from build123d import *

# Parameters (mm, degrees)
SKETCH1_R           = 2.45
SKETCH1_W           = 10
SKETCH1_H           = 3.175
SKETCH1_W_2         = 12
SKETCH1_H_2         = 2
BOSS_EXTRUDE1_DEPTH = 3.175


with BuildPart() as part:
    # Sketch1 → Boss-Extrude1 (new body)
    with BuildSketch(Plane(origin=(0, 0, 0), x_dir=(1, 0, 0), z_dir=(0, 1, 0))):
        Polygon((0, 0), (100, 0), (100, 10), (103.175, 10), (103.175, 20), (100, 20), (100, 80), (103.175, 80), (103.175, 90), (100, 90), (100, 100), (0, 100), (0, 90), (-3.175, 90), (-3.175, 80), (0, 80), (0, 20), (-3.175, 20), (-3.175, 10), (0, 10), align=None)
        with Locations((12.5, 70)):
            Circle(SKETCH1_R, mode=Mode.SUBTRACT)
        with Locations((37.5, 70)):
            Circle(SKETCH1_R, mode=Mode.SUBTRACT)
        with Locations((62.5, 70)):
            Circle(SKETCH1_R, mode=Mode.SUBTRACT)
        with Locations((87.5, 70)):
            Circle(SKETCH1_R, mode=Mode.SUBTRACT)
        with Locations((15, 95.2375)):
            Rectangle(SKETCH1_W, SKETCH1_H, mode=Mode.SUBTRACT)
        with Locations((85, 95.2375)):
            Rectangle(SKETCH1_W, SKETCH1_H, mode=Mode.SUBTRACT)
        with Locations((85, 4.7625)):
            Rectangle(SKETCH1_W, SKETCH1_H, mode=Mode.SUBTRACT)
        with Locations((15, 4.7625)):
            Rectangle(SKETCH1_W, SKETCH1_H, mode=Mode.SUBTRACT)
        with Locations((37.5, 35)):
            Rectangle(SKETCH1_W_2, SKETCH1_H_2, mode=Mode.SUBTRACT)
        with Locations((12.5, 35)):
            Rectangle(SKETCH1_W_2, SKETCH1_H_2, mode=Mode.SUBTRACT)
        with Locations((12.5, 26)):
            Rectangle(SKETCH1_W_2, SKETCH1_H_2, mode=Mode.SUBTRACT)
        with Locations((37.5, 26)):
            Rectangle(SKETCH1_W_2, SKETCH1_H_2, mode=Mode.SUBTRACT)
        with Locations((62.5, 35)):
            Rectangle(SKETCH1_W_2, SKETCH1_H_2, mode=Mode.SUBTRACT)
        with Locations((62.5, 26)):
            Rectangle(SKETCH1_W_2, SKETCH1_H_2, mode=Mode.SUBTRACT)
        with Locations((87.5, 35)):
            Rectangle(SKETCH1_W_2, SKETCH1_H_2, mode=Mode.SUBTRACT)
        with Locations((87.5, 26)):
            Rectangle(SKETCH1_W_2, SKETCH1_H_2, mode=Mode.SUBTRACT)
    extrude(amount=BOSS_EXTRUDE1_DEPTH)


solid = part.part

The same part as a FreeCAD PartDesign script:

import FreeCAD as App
import Part
import Sketcher

V = App.Vector
Q = App.Units.Quantity


def add_polygon(sketch, points):
    """Adds a closed chain of lines whose ends are joined by coincident constraints."""
    first, n = sketch.GeometryCount, len(points)
    for a, b in zip(points, points[1:] + points[:1]):
        sketch.addGeometry(Part.LineSegment(App.Vector(*a, 0), App.Vector(*b, 0)), False)
    for i in range(n):
        sketch.addConstraint(Sketcher.Constraint("Coincident", first + i, 2, first + (i + 1) % n, 1))

doc = App.newDocument("Part")
body = doc.addObject("PartDesign::Body", "Body")

sketch1 = doc.addObject("Sketcher::SketchObject", "Sketch")
body.addObject(sketch1)
sketch1.AttachmentSupport = (doc.XZ_Plane, [""])
sketch1.MapMode = "FlatFace"
add_polygon(sketch1, [(0, 0), (100, 0), (100, -10), (103.2, -10), (103.2, -20), (100, -20), (100, -80), (103.2, -80), (103.2, -90), (100, -90), (100, -100), (0, -100), (0, -90), (-3.2, -90), (-3.2, -80), (0, -80), (0, -20), (-3.2, -20), (-3.2, -10), (0, -10)])
add_polygon(sketch1, [(20, -3.2), (10, -3.2), (10, -6.3), (20, -6.3)])
add_polygon(sketch1, [(18.5, -25), (6.5, -25), (6.5, -27), (18.5, -27)])
add_polygon(sketch1, [(43.5, -25), (31.5, -25), (31.5, -27), (43.5, -27)])
add_polygon(sketch1, [(18.5, -34), (6.5, -34), (6.5, -36), (18.5, -36)])
add_polygon(sketch1, [(43.5, -34), (31.5, -34), (31.5, -36), (43.5, -36)])
add_polygon(sketch1, [(68.5, -25), (56.5, -25), (56.5, -27), (68.5, -27)])
add_polygon(sketch1, [(90, -3.2), (80, -3.2), (80, -6.3), (90, -6.3)])
add_polygon(sketch1, [(93.5, -25), (81.5, -25), (81.5, -27), (93.5, -27)])
add_polygon(sketch1, [(68.5, -34), (56.5, -34), (56.5, -36), (68.5, -36)])
add_polygon(sketch1, [(93.5, -34), (81.5, -34), (81.5, -36), (93.5, -36)])
sketch1.addGeometry(Part.Circle(V(12.5, -70, 0), V(0, 0, 1), 2.5), False)
sketch1.addGeometry(Part.Circle(V(37.5, -70, 0), V(0, 0, 1), 2.5), False)
add_polygon(sketch1, [(20, -93.7), (10, -93.7), (10, -96.8), (20, -96.8)])
sketch1.addGeometry(Part.Circle(V(62.5, -70, 0), V(0, 0, 1), 2.5), False)
sketch1.addGeometry(Part.Circle(V(87.5, -70, 0), V(0, 0, 1), 2.5), False)
add_polygon(sketch1, [(90, -93.7), (80, -93.7), (80, -96.8), (90, -96.8)])
sketch1.addConstraint(Sketcher.Constraint("Horizontal", 0))
sketch1.addConstraint(Sketcher.Constraint("Vertical", 1))
sketch1.addConstraint(Sketcher.Constraint("Horizontal", 2))
sketch1.addConstraint(Sketcher.Constraint("Vertical", 3))
sketch1.addConstraint(Sketcher.Constraint("Horizontal", 4))
sketch1.addConstraint(Sketcher.Constraint("Vertical", 5))
sketch1.addConstraint(Sketcher.Constraint("Horizontal", 6))
sketch1.addConstraint(Sketcher.Constraint("Vertical", 7))
sketch1.addConstraint(Sketcher.Constraint("Horizontal", 8))
sketch1.addConstraint(Sketcher.Constraint("Vertical", 9))
sketch1.addConstraint(Sketcher.Constraint("Horizontal", 10))
sketch1.addConstraint(Sketcher.Constraint("Vertical", 11))
sketch1.addConstraint(Sketcher.Constraint("Horizontal", 12))
sketch1.addConstraint(Sketcher.Constraint("Vertical", 13))
sketch1.addConstraint(Sketcher.Constraint("Horizontal", 14))
sketch1.addConstraint(Sketcher.Constraint("Vertical", 15))
sketch1.addConstraint(Sketcher.Constraint("Horizontal", 16))
sketch1.addConstraint(Sketcher.Constraint("Vertical", 17))
sketch1.addConstraint(Sketcher.Constraint("Horizontal", 18))
sketch1.addConstraint(Sketcher.Constraint("Vertical", 19))
sketch1.addConstraint(Sketcher.Constraint("Horizontal", 20))
sketch1.addConstraint(Sketcher.Constraint("Vertical", 21))
sketch1.addConstraint(Sketcher.Constraint("Horizontal", 22))
sketch1.addConstraint(Sketcher.Constraint("Vertical", 23))
sketch1.addConstraint(Sketcher.Constraint("Horizontal", 24))
sketch1.addConstraint(Sketcher.Constraint("Vertical", 25))
sketch1.addConstraint(Sketcher.Constraint("Horizontal", 26))
sketch1.addConstraint(Sketcher.Constraint("Vertical", 27))
sketch1.addConstraint(Sketcher.Constraint("Horizontal", 28))
sketch1.addConstraint(Sketcher.Constraint("Vertical", 29))
sketch1.addConstraint(Sketcher.Constraint("Horizontal", 30))
sketch1.addConstraint(Sketcher.Constraint("Vertical", 31))
sketch1.addConstraint(Sketcher.Constraint("Horizontal", 32))
sketch1.addConstraint(Sketcher.Constraint("Vertical", 33))
sketch1.addConstraint(Sketcher.Constraint("Horizontal", 34))
sketch1.addConstraint(Sketcher.Constraint("Vertical", 35))
sketch1.addConstraint(Sketcher.Constraint("Horizontal", 36))
sketch1.addConstraint(Sketcher.Constraint("Vertical", 37))
sketch1.addConstraint(Sketcher.Constraint("Horizontal", 38))
sketch1.addConstraint(Sketcher.Constraint("Vertical", 39))
sketch1.addConstraint(Sketcher.Constraint("Horizontal", 40))
sketch1.addConstraint(Sketcher.Constraint("Vertical", 41))
sketch1.addConstraint(Sketcher.Constraint("Horizontal", 42))
sketch1.addConstraint(Sketcher.Constraint("Vertical", 43))
sketch1.addConstraint(Sketcher.Constraint("Horizontal", 44))
sketch1.addConstraint(Sketcher.Constraint("Vertical", 45))
sketch1.addConstraint(Sketcher.Constraint("Horizontal", 46))
sketch1.addConstraint(Sketcher.Constraint("Vertical", 47))
sketch1.addConstraint(Sketcher.Constraint("Horizontal", 48))
sketch1.addConstraint(Sketcher.Constraint("Vertical", 49))
sketch1.addConstraint(Sketcher.Constraint("Horizontal", 50))
sketch1.addConstraint(Sketcher.Constraint("Vertical", 51))
sketch1.addConstraint(Sketcher.Constraint("Horizontal", 52))
sketch1.addConstraint(Sketcher.Constraint("Vertical", 53))
sketch1.addConstraint(Sketcher.Constraint("Horizontal", 54))
sketch1.addConstraint(Sketcher.Constraint("Vertical", 55))
sketch1.addConstraint(Sketcher.Constraint("Horizontal", 56))
sketch1.addConstraint(Sketcher.Constraint("Vertical", 57))
sketch1.addConstraint(Sketcher.Constraint("Horizontal", 58))
sketch1.addConstraint(Sketcher.Constraint("Vertical", 59))
sketch1.addConstraint(Sketcher.Constraint("Horizontal", 62))
sketch1.addConstraint(Sketcher.Constraint("Vertical", 63))
sketch1.addConstraint(Sketcher.Constraint("Horizontal", 64))
sketch1.addConstraint(Sketcher.Constraint("Vertical", 65))
sketch1.addConstraint(Sketcher.Constraint("Horizontal", 68))
sketch1.addConstraint(Sketcher.Constraint("Vertical", 69))
sketch1.addConstraint(Sketcher.Constraint("Horizontal", 70))
sketch1.addConstraint(Sketcher.Constraint("Vertical", 71))
sketch1.addConstraint(Sketcher.Constraint("Coincident", 19, 2, -1, 1))
sketch1.addConstraint(Sketcher.Constraint("Equal", 60, 61))
sketch1.addConstraint(Sketcher.Constraint("Equal", 61, 66))
sketch1.addConstraint(Sketcher.Constraint("Equal", 66, 67))
sketch1.addConstraint(Sketcher.Constraint("PointOnObject", 10, 2, -2))
sketch1.addConstraint(Sketcher.Constraint("PointOnObject", 14, 2, -2))
sketch1.addConstraint(Sketcher.Constraint("Horizontal", 60, 3, 61, 3))
sketch1.addConstraint(Sketcher.Constraint("Horizontal", 61, 3, 66, 3))
sketch1.addConstraint(Sketcher.Constraint("Horizontal", 66, 3, 67, 3))
sketch1.addConstraint(Sketcher.Constraint("Horizontal", 8, 2, 11, 2))
sketch1.addConstraint(Sketcher.Constraint("Horizontal", 6, 2, 13, 2))
sketch1.addConstraint(Sketcher.Constraint("Horizontal", 4, 2, 15, 2))
sketch1.addConstraint(Sketcher.Constraint("Horizontal", 2, 2, 17, 2))
sketch1.addConstraint(Sketcher.Constraint("Horizontal", 27, 2, 28, 2))
sketch1.addConstraint(Sketcher.Constraint("Horizontal", 26, 2, 29, 2))
sketch1.addConstraint(Sketcher.Constraint("Horizontal", 35, 2, 36, 2))
sketch1.addConstraint(Sketcher.Constraint("Horizontal", 34, 2, 37, 2))
sketch1.addConstraint(Sketcher.Constraint("Horizontal", 31, 2, 40, 2))
sketch1.addConstraint(Sketcher.Constraint("Horizontal", 30, 2, 41, 2))
sketch1.addConstraint(Sketcher.Constraint("Horizontal", 23, 2, 44, 2))
sketch1.addConstraint(Sketcher.Constraint("Horizontal", 22, 2, 45, 2))
sketch1.addConstraint(Sketcher.Constraint("Horizontal", 43, 2, 48, 2))
sketch1.addConstraint(Sketcher.Constraint("Horizontal", 42, 2, 49, 2))
sketch1.addConstraint(Sketcher.Constraint("Horizontal", 39, 2, 52, 2))
sketch1.addConstraint(Sketcher.Constraint("Horizontal", 38, 2, 53, 2))
sketch1.addConstraint(Sketcher.Constraint("Horizontal", 55, 2, 56, 2))
sketch1.addConstraint(Sketcher.Constraint("Horizontal", 54, 2, 57, 2))
sketch1.addConstraint(Sketcher.Constraint("Horizontal", 65, 2, 68, 2))
sketch1.addConstraint(Sketcher.Constraint("Horizontal", 64, 2, 69, 2))
sketch1.addConstraint(Sketcher.Constraint("Vertical", 1, 2, 4, 2))
sketch1.addConstraint(Sketcher.Constraint("Vertical", 3, 2, 6, 2))
sketch1.addConstraint(Sketcher.Constraint("Vertical", 5, 2, 8, 2))
sketch1.addConstraint(Sketcher.Constraint("Vertical", 13, 2, 16, 2))
sketch1.addConstraint(Sketcher.Constraint("Vertical", 25, 2, 32, 2))
sketch1.addConstraint(Sketcher.Constraint("Vertical", 27, 2, 34, 2))
sketch1.addConstraint(Sketcher.Constraint("Vertical", 29, 2, 36, 2))
sketch1.addConstraint(Sketcher.Constraint("Vertical", 31, 2, 38, 2))
sketch1.addConstraint(Sketcher.Constraint("Vertical", 41, 2, 52, 2))
sketch1.addConstraint(Sketcher.Constraint("Vertical", 43, 2, 54, 2))
sketch1.addConstraint(Sketcher.Constraint("Vertical", 49, 2, 56, 2))
sketch1.addConstraint(Sketcher.Constraint("Vertical", 51, 2, 58, 2))
sketch1.addConstraint(Sketcher.Constraint("Vertical", 21, 2, 62, 2))
sketch1.addConstraint(Sketcher.Constraint("Vertical", 23, 2, 64, 2))
sketch1.addConstraint(Sketcher.Constraint("Vertical", 45, 2, 68, 2))
sketch1.addConstraint(Sketcher.Constraint("Vertical", 47, 2, 70, 2))
sketch1.addConstraint(Sketcher.Constraint("Equal", 8, 12))
sketch1.addConstraint(Sketcher.Constraint("Equal", 26, 28))
sketch1.addConstraint(Sketcher.Constraint("Equal", 38, 40))
sketch1.addConstraint(Sketcher.Constraint("Equal", 22, 44))
sketch1.addConstraint(Sketcher.Constraint("Equal", 42, 48))
sketch1.addConstraint(Sketcher.Constraint("Equal", 70, 1))
sketch1.addConstraint(Sketcher.Constraint("Equal", 1, 3))
sketch1.addConstraint(Sketcher.Constraint("Equal", 3, 7))
sketch1.addConstraint(Sketcher.Constraint("Equal", 7, 9))
sketch1.addConstraint(Sketcher.Constraint("Equal", 18, 21))
sketch1.addConstraint(Sketcher.Constraint("Equal", 31, 33))
sketch1.addConstraint(Sketcher.Constraint("Equal", 47, 63))
sketch1.addConstraint(Sketcher.Constraint("Diameter", 60, Q("4.9 mm")))
sketch1.addConstraint(Sketcher.Constraint("DistanceX", 0, 1, 0, 2, Q("100 mm")))
sketch1.addConstraint(Sketcher.Constraint("DistanceX", 20, 2, 20, 1, Q("10 mm")))
sketch1.addConstraint(Sketcher.Constraint("DistanceX", 24, 2, 24, 1, Q("12 mm")))
sketch1.addConstraint(Sketcher.Constraint("DistanceY", 5, 2, 5, 1, Q("60 mm")))
sketch1.addConstraint(Sketcher.Constraint("DistanceY", 25, 2, 25, 1, Q("2 mm")))
sketch1.addConstraint(Sketcher.Constraint("DistanceY", 60, 3, -1, 1, Q("70 mm")))
sketch1.addConstraint(Sketcher.Constraint("DistanceX", -1, 1, 20, 2, Q("10 mm")))
sketch1.addConstraint(Sketcher.Constraint("DistanceY", 24, 2, -1, 1, Q("25 mm")))
sketch1.addConstraint(Sketcher.Constraint("DistanceY", 32, 2, -1, 1, Q("34 mm")))
sketch1.addConstraint(Sketcher.Constraint("DistanceX", -1, 1, 44, 2, Q("80 mm")))
sketch1.addConstraint(Sketcher.Constraint("DistanceX", -1, 1, 60, 3, Q("12.5 mm")))
sketch1.addConstraint(Sketcher.Constraint("DistanceX", -1, 1, 61, 3, Q("37.5 mm")))
sketch1.addConstraint(Sketcher.Constraint("DistanceX", -1, 1, 66, 3, Q("62.5 mm")))
sketch1.addConstraint(Sketcher.Constraint("DistanceX", -1, 1, 67, 3, Q("87.5 mm")))
sketch1.addConstraint(Sketcher.Constraint("DistanceX", -1, 1, 24, 2, Q("6.5 mm")))
sketch1.addConstraint(Sketcher.Constraint("DistanceX", -1, 1, 28, 2, Q("31.5 mm")))
sketch1.addConstraint(Sketcher.Constraint("DistanceX", -1, 1, 40, 2, Q("56.5 mm")))
sketch1.addConstraint(Sketcher.Constraint("DistanceX", -1, 1, 48, 2, Q("81.5 mm")))
sketch1.addConstraint(Sketcher.Constraint("DistanceX", 2, 1, 2, 2, Q("3.175 mm")))
sketch1.addConstraint(Sketcher.Constraint("DistanceY", 21, 2, -1, 1, Q("6.35 mm")))
sketch1.addConstraint(Sketcher.Constraint("DistanceY", 62, 2, -1, 1, Q("93.65 mm")))
pad1 = doc.addObject("PartDesign::Pad", "Pad")
body.addObject(pad1)
pad1.Profile = sketch1
pad1.Length = 3.175
pad1.Reversed = True

doc.recompute()
